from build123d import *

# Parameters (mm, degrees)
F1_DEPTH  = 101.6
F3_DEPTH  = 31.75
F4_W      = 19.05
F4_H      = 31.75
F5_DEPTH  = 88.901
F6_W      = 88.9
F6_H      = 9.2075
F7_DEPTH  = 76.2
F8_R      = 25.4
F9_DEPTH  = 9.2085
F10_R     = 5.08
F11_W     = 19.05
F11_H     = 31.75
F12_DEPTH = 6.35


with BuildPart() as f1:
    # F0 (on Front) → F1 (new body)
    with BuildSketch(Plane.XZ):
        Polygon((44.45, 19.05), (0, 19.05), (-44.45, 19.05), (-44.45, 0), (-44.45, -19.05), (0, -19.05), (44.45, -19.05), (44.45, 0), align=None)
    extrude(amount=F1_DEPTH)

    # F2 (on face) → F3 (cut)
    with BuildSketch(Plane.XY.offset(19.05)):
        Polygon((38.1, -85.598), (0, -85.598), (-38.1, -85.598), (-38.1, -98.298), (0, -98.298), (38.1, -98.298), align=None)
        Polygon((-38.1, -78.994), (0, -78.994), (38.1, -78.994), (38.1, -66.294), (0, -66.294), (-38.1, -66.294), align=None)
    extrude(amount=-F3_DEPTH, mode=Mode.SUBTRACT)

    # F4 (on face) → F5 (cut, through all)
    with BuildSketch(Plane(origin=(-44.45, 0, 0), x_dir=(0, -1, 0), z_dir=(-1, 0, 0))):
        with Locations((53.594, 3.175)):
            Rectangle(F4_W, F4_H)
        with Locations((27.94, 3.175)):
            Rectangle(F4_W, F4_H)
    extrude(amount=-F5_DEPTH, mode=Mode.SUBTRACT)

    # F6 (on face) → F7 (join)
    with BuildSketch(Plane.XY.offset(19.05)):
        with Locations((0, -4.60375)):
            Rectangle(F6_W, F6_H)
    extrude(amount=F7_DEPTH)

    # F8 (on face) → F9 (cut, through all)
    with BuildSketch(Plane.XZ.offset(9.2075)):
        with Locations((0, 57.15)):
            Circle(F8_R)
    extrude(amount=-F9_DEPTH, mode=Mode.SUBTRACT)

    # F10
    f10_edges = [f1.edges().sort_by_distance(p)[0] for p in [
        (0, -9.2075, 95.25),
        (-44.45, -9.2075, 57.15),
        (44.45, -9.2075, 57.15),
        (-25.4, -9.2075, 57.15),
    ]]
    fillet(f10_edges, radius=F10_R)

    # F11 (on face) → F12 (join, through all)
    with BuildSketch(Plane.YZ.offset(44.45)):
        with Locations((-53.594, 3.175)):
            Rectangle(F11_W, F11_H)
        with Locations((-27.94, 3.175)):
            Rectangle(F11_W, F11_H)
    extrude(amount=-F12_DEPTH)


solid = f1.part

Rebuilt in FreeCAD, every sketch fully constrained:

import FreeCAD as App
import Part
import Sketcher

V = App.Vector
Q = App.Units.Quantity


def edges_at(feature, points):
    """Names of the edges that pass closest to the given points."""
    edges = feature.Shape.Edges
    near = lambda p: min(range(len(edges)), key=lambda i: edges[i].distToShape(Part.Vertex(*p))[0])
    return sorted({f"Edge{near(p) + 1}" for p in points})


def add_polygon(sketch, points):
    """Adds a closed chain of lines whose ends are joined by coincident constraints."""
    first, n = sketch.GeometryCount, len(points)
    for a, b in zip(points, points[1:] + points[:1]):
        sketch.addGeometry(Part.LineSegment(App.Vector(*a, 0), App.Vector(*b, 0)), False)
    for i in range(n):
        sketch.addConstraint(Sketcher.Constraint("Coincident", first + i, 2, first + (i + 1) % n, 1))

doc = App.newDocument("Part")
body = doc.addObject("PartDesign::Body", "Body")

# Sketch on XZ plane
sketch1 = body.newObject("Sketcher::SketchObject", "Sketch")
sketch1.AttachmentSupport = (doc.getObject("XZ_Plane"), [""])
sketch1.MapMode = "FlatFace"
add_polygon(sketch1, [(44.45, 19.05), (-44.45, 19.05), (-44.45, -19.05), (44.45, -19.05)])  # lines 0-3
sketch1.addConstraint(Sketcher.Constraint("Horizontal", 0))
sketch1.addConstraint(Sketcher.Constraint("Vertical", 1))
sketch1.addConstraint(Sketcher.Constraint("Horizontal", 2))
sketch1.addConstraint(Sketcher.Constraint("Vertical", 3))
sketch1.addConstraint(Sketcher.Constraint("Symmetric", 0, 2, 2, 2, -1, 1))
sketch1.addConstraint(Sketcher.Constraint("DistanceX", 0, 2, 0, 1, Q("3.5 in")))
sketch1.addConstraint(Sketcher.Constraint("DistanceY", 1, 2, 1, 1, Q("1.5 in")))
pad1 = body.newObject("PartDesign::Pad", "Pad")
pad1.Profile = sketch1
pad1.Length = Q("4 in")

# Sketch on XY plane
sketch2 = body.newObject("Sketcher::SketchObject", "Sketch001")
sketch2.AttachmentSupport = (doc.getObject("XY_Plane"), [""])
sketch2.MapMode = "FlatFace"
sketch2.AttachmentOffset = App.Placement(V(0, 0, 0.75 * 25.4), App.Rotation())
add_polygon(sketch2, [(38.1, -85.598), (-38.1, -85.598), (-38.1, -98.298), (38.1, -98.298)])  # lines 0-3
add_polygon(sketch2, [(-38.1, -78.994), (38.1, -78.994), (38.1, -66.294), (-38.1, -66.294)])  # lines 4-7
sketch2.addConstraint(Sketcher.Constraint("Horizontal", 0))
sketch2.addConstraint(Sketcher.Constraint("Vertical", 1))
sketch2.addConstraint(Sketcher.Constraint("Horizontal", 2))
sketch2.addConstraint(Sketcher.Constraint("Vertical", 3))
sketch2.addConstraint(Sketcher.Constraint("Horizontal", 4))
sketch2.addConstraint(Sketcher.Constraint("Vertical", 5))
sketch2.addConstraint(Sketcher.Constraint("Horizontal", 6))
sketch2.addConstraint(Sketcher.Constraint("Vertical", 7))
sketch2.addConstraint(Sketcher.Constraint("Vertical", 3, 2, 4, 2))
sketch2.addConstraint(Sketcher.Constraint("Vertical", 1, 2, 6, 2))
sketch2.addConstraint(Sketcher.Constraint("Equal", 3, 5))
sketch2.addConstraint(Sketcher.Constraint("DistanceX", 0, 2, 0, 1, Q("3 in")))
sketch2.addConstraint(Sketcher.Constraint("DistanceY", 1, 2, 1, 1, Q("0.5 in")))
sketch2.addConstraint(Sketcher.Constraint("DistanceX", 0, 2, -1, 1, Q("1.5 in")))
sketch2.addConstraint(Sketcher.Constraint("DistanceY", 0, 2, -1, 1, Q("3.37 in")))
sketch2.addConstraint(Sketcher.Constraint("DistanceY", 4, 2, -1, 1, Q("3.11 in")))
pocket1 = body.newObject("PartDesign::Pocket", "Pocket")
pocket1.Profile = sketch2
pocket1.Length = Q("1.25 in")

# Sketch on YZ plane
sketch3 = body.newObject("Sketcher::SketchObject", "Sketch002")
sketch3.AttachmentSupport = (doc.getObject("YZ_Plane"), [""])
sketch3.MapMode = "FlatFace"
sketch3.AttachmentOffset = App.Placement(V(0, 0, -1.75 * 25.4), App.Rotation())
add_polygon(sketch3, [(-44.069, 19.05), (-44.069, -12.7), (-63.119, -12.7), (-63.119, 19.05)])  # lines 0-3
add_polygon(sketch3, [(-18.415, 19.05), (-18.415, -12.7), (-37.465, -12.7), (-37.465, 19.05)])  # lines 4-7
sketch3.addConstraint(Sketcher.Constraint("Vertical", 0))
sketch3.addConstraint(Sketcher.Constraint("Horizontal", 1))
sketch3.addConstraint(Sketcher.Constraint("Vertical", 2))
sketch3.addConstraint(Sketcher.Constraint("Horizontal", 3))
sketch3.addConstraint(Sketcher.Constraint("Vertical", 4))
sketch3.addConstraint(Sketcher.Constraint("Horizontal", 5))
sketch3.addConstraint(Sketcher.Constraint("Vertical", 6))
sketch3.addConstraint(Sketcher.Constraint("Horizontal", 7))
sketch3.addConstraint(Sketcher.Constraint("Horizontal", 1, 2, 4, 2))
sketch3.addConstraint(Sketcher.Constraint("Horizontal", 3, 2, 6, 2))
sketch3.addConstraint(Sketcher.Constraint("Equal", 3, 5))
sketch3.addConstraint(Sketcher.Constraint("DistanceX", 1, 2, 1, 1, Q("0.75 in")))
sketch3.addConstraint(Sketcher.Constraint("DistanceY", 0, 2, 0, 1, Q("1.25 in")))
sketch3.addConstraint(Sketcher.Constraint("DistanceY", 0, 2, -1, 1, Q("0.5 in")))
sketch3.addConstraint(Sketcher.Constraint("DistanceX", 0, 2, 4, 2, Q("1.01 in")))
sketch3.addConstraint(Sketcher.Constraint("DistanceX", 0, 2, -1, 1, Q("1.735 in")))
pocket2 = body.newObject("PartDesign::Pocket", "Pocket001")
pocket2.Profile = sketch3
pocket2.Type = "ThroughAll"
pocket2.Reversed = True

# Sketch on XY plane
sketch4 = body.newObject("Sketcher::SketchObject", "Sketch003")
sketch4.AttachmentSupport = (doc.getObject("XY_Plane"), [""])
sketch4.MapMode = "FlatFace"
sketch4.AttachmentOffset = App.Placement(V(0, 0, 0.75 * 25.4), App.Rotation())
add_polygon(sketch4, [(-44.45, 0), (-44.45, -9.2075), (44.45, -9.2075), (44.45, 0)])  # lines 0-3
sketch4.addConstraint(Sketcher.Constraint("Vertical", 0))
sketch4.addConstraint(Sketcher.Constraint("Horizontal", 1))
sketch4.addConstraint(Sketcher.Constraint("Vertical", 2))
sketch4.addConstraint(Sketcher.Constraint("Horizontal", 3))
sketch4.addConstraint(Sketcher.Constraint("Symmetric", 2, 2, 3, 2, -1, 1))
sketch4.addConstraint(Sketcher.Constraint("DistanceX", 1, 1, 1, 2, Q("3.5 in")))
sketch4.addConstraint(Sketcher.Constraint("DistanceY", 0, 2, 0, 1, Q("0.3625 in")))
pad2 = body.newObject("PartDesign::Pad", "Pad001")
pad2.Profile = sketch4
pad2.Length = Q("3 in")

# Sketch on XZ plane
sketch5 = body.newObject("Sketcher::SketchObject", "Sketch004")
sketch5.AttachmentSupport = (doc.getObject("XZ_Plane"), [""])
sketch5.MapMode = "FlatFace"
sketch5.AttachmentOffset = App.Placement(V(0, 0, 0.3625 * 25.4), App.Rotation())
sketch5.addGeometry(Part.Circle(V(0, 57.15, 0), V(0, 0, 1), 25.4), False)
sketch5.addConstraint(Sketcher.Constraint("PointOnObject", 0, 3, -2))
sketch5.addConstraint(Sketcher.Constraint("Diameter", 0, Q("2 in")))
sketch5.addConstraint(Sketcher.Constraint("DistanceY", -1, 1, 0, 3, Q("2.25 in")))
pocket3 = body.newObject("PartDesign::Pocket", "Pocket002")
pocket3.Profile = sketch5
pocket3.Type = "ThroughAll"
doc.recompute()

fillet = body.newObject("PartDesign::Fillet", "Fillet")
fillet.Base = (pocket3, edges_at(pocket3, [
    (0, -9.207, 95.25),
    (-44.45, -9.207, 57.15),
    (44.45, -9.207, 57.15),
    (-25.4, -9.207, 57.15),
]))
fillet.Radius = Q("0.2 in")

# Sketch on YZ plane
sketch6 = body.newObject("Sketcher::SketchObject", "Sketch005")
sketch6.AttachmentSupport = (doc.getObject("YZ_Plane"), [""])
sketch6.MapMode = "FlatFace"
sketch6.AttachmentOffset = App.Placement(V(0, 0, 1.75 * 25.4), App.Rotation())
add_polygon(sketch6, [(-63.119, 19.05), (-63.119, -12.7), (-44.069, -12.7), (-44.069, 19.05)])  # lines 0-3
add_polygon(sketch6, [(-37.465, 19.05), (-37.465, -12.7), (-18.415, -12.7), (-18.415, 19.05)])  # lines 4-7
sketch6.addConstraint(Sketcher.Constraint("Vertical", 0))
sketch6.addConstraint(Sketcher.Constraint("Horizontal", 1))
sketch6.addConstraint(Sketcher.Constraint("Vertical", 2))
sketch6.addConstraint(Sketcher.Constraint("Horizontal", 3))
sketch6.addConstraint(Sketcher.Constraint("Vertical", 4))
sketch6.addConstraint(Sketcher.Constraint("Horizontal", 5))
sketch6.addConstraint(Sketcher.Constraint("Vertical", 6))
sketch6.addConstraint(Sketcher.Constraint("Horizontal", 7))
sketch6.addConstraint(Sketcher.Constraint("Horizontal", 1, 2, 4, 2))
sketch6.addConstraint(Sketcher.Constraint("Horizontal", 3, 2, 6, 2))
sketch6.addConstraint(Sketcher.Constraint("Equal", 3, 5))
sketch6.addConstraint(Sketcher.Constraint("DistanceX", 1, 1, 1, 2, Q("0.75 in")))
sketch6.addConstraint(Sketcher.Constraint("DistanceY", 0, 2, 0, 1, Q("1.25 in")))
sketch6.addConstraint(Sketcher.Constraint("DistanceY", 0, 2, -1, 1, Q("0.5 in")))
sketch6.addConstraint(Sketcher.Constraint("DistanceX", 1, 2, 4, 2, Q("0.26 in")))
sketch6.addConstraint(Sketcher.Constraint("DistanceX", 0, 2, -1, 1, Q("2.485 in")))
pad3 = body.newObject("PartDesign::Pad", "Pad002")
pad3.Profile = sketch6
pad3.Length = Q("0.25 in")
pad3.Reversed = True

doc.recompute()
